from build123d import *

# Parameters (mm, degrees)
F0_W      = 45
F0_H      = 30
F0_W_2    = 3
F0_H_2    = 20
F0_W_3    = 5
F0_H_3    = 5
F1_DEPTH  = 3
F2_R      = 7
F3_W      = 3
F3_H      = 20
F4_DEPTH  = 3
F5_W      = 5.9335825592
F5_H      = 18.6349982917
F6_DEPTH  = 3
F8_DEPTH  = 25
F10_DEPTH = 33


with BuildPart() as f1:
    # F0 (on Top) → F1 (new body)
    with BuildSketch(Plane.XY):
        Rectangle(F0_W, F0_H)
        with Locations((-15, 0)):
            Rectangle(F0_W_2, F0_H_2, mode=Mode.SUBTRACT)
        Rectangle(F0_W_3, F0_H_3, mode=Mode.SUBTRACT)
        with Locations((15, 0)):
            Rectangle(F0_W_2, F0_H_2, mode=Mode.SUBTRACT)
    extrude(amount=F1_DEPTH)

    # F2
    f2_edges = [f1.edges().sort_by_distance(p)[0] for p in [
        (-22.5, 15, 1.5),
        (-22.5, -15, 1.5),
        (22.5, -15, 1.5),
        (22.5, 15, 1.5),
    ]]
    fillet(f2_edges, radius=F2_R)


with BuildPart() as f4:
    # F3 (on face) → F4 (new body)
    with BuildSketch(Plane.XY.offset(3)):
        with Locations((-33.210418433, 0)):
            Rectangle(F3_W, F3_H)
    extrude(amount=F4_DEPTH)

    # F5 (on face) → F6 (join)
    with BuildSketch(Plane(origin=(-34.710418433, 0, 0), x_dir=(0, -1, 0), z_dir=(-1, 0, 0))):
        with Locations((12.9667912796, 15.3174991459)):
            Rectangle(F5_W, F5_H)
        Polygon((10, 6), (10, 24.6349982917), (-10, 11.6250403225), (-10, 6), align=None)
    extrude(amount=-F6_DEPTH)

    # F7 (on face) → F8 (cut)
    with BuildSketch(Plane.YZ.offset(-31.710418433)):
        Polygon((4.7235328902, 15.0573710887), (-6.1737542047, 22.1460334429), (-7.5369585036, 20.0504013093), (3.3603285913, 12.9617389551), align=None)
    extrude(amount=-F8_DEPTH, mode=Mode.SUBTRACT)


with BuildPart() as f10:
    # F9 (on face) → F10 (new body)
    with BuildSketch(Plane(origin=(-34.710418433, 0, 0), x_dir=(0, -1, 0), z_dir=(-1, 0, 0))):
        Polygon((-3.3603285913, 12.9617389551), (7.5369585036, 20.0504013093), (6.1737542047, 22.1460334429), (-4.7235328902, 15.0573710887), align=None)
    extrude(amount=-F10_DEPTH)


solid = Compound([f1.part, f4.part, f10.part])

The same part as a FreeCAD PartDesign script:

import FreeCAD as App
import Part
import Sketcher


def edges_at(feature, points):
    """Names of the edges that pass closest to the given points."""
    edges = feature.Shape.Edges
    near = lambda p: min(range(len(edges)), key=lambda i: edges[i].distToShape(Part.Vertex(*p))[0])
    return sorted({f"Edge{near(p) + 1}" for p in points})


def add_polygon(sketch, points):
    """Adds a closed chain of lines whose ends are joined by coincident constraints."""
    first, n = sketch.GeometryCount, len(points)
    for a, b in zip(points, points[1:] + points[:1]):
        sketch.addGeometry(Part.LineSegment(App.Vector(*a, 0), App.Vector(*b, 0)), False)
    for i in range(n):
        sketch.addConstraint(Sketcher.Constraint("Coincident", first + i, 2, first + (i + 1) % n, 1))

doc = App.newDocument("Part")
params = doc.addObject("Spreadsheet::Sheet", "Params")
for row, (alias, value) in enumerate([
    ("sketch1_width", "45 mm"),
    ("sketch1_width2", "3 mm"),
    ("sketch1_width3", "5 mm"),
    ("sketch1_height", "30 mm"),
    ("sketch1_height2", "20 mm"),
    ("pad1_length", "3 mm"),
    ("fillet_radius", "7 mm"),
    ("sketch2_width", "3 mm"),
    ("sketch2_height", "20 mm"),
    ("pad2_length", "3 mm"),
    ("sketch3_width", "20 mm"),
    ("pad3_length", "3 mm"),
    ("sketch4_length", "13 mm"),
    ("sketch4_length2", "2.5 mm"),
    ("pocket1_length", "25 mm"),
    ("sketch5_length", "13 mm"),
    ("sketch5_length2", "2.5 mm"),
    ("pad4_length", "33 mm"),
], start=1):
    params.set(f"A{row}", alias)
    params.set(f"B{row}", "=" + value)
    params.setAlias(f"B{row}", alias)

body = doc.addObject("PartDesign::Body", "Body")

sketch1 = doc.addObject("Sketcher::SketchObject", "Sketch")
body.addObject(sketch1)
sketch1.AttachmentSupport = (doc.XY_Plane, [""])
sketch1.MapMode = "FlatFace"
add_polygon(sketch1, [(-22.5, 15), (-22.5, -15), (22.5, -15), (22.5, 15)])
add_polygon(sketch1, [(-13.5, -10), (-16.5, -10), (-16.5, 10), (-13.5, 10)])
add_polygon(sketch1, [(2.5, -2.5), (-2.5, -2.5), (-2.5, 2.5), (2.5, 2.5)])
add_polygon(sketch1, [(16.5, -10), (13.5, -10), (13.5, 10), (16.5, 10)])
sketch1.addConstraint([
    Sketcher.Constraint("Vertical", 0),
    Sketcher.Constraint("Horizontal", 1),
    Sketcher.Constraint("Vertical", 2),
    Sketcher.Constraint("Horizontal", 3),
    Sketcher.Constraint("Horizontal", 4),
    Sketcher.Constraint("Vertical", 5),
    Sketcher.Constraint("Horizontal", 6),
    Sketcher.Constraint("Vertical", 7),
    Sketcher.Constraint("Horizontal", 8),
    Sketcher.Constraint("Vertical", 9),
    Sketcher.Constraint("Horizontal", 10),
    Sketcher.Constraint("Vertical", 11),
    Sketcher.Constraint("Horizontal", 12),
    Sketcher.Constraint("Vertical", 13),
    Sketcher.Constraint("Horizontal", 14),
    Sketcher.Constraint("Vertical", 15),
    Sketcher.Constraint("Symmetric", 0, 2, 2, 2, -1, 1),
    Sketcher.Constraint("Symmetric", 8, 2, 10, 2, -1, 1),
    Sketcher.Constraint("Symmetric", 6, 2, 12, 2, -1, 1),
    Sketcher.Constraint("Symmetric", 4, 2, 14, 2, -1, 1),
    Sketcher.Constraint("Horizontal", 7, 2, 12, 2),
    Sketcher.Constraint("Equal", 10, 9),
    Sketcher.Constraint("DistanceX", 1, 1, 1, 2, 45.0),
    Sketcher.Constraint("DistanceX", 4, 2, 4, 1, 3.0),
    Sketcher.Constraint("DistanceX", 8, 2, 8, 1, 5.0),
    Sketcher.Constraint("DistanceY", 0, 2, 0, 1, 30.0),
    Sketcher.Constraint("DistanceY", 5, 1, 5, 2, 20.0),
    Sketcher.Constraint("DistanceX", 0, 2, 4, 2, 6.0),
])
sketch1.setExpression("Constraints[38]", "Params.sketch1_width")
sketch1.setExpression("Constraints[39]", "Params.sketch1_width2")
sketch1.setExpression("Constraints[40]", "Params.sketch1_width3")
sketch1.setExpression("Constraints[41]", "Params.sketch1_height")
sketch1.setExpression("Constraints[42]", "Params.sketch1_height2")
pad1 = doc.addObject("PartDesign::Pad", "Pad")
body.addObject(pad1)
pad1.Profile = sketch1
pad1.setExpression("Length", "Params.pad1_length")
doc.recompute()

fillet = doc.addObject("PartDesign::Fillet", "Fillet")
body.addObject(fillet)
fillet.Base = (pad1, edges_at(pad1, [
    (-22.5, 15, 1.5),
    (-22.5, -15, 1.5),
    (22.5, -15, 1.5),
    (22.5, 15, 1.5),
]))
fillet.setExpression("Radius", "Params.fillet_radius")
body2 = doc.addObject("PartDesign::Body", "Body001")

sketch2 = doc.addObject("Sketcher::SketchObject", "Sketch001")
body2.addObject(sketch2)
sketch2.AttachmentSupport = (doc.getObject("XY_Plane001"), [""])
sketch2.MapMode = "FlatFace"
sketch2.AttachmentOffset = App.Placement(App.Vector(0, 0, 3), App.Rotation())
add_polygon(sketch2, [(-34.7, 10), (-34.7, -10), (-31.7, -10), (-31.7, 10)])
sketch2.addConstraint([
    Sketcher.Constraint("Vertical", 0),
    Sketcher.Constraint("Horizontal", 1),
    Sketcher.Constraint("Vertical", 2),
    Sketcher.Constraint("Horizontal", 3),
    Sketcher.Constraint("DistanceX", 1, 1, 1, 2, 3.0),
    Sketcher.Constraint("DistanceY", 0, 2, 0, 1, 20.0),
    Sketcher.Constraint("DistanceY", 0, 2, -1, 1, 10.0),
    Sketcher.Constraint("DistanceX", 0, 2, -1, 1, 34.710418),
])
sketch2.setExpression("Constraints[8]", "Params.sketch2_width")
sketch2.setExpression("Constraints[9]", "Params.sketch2_height")
pad2 = doc.addObject("PartDesign::Pad", "Pad001")
body2.addObject(pad2)
pad2.Profile = sketch2
pad2.setExpression("Length", "Params.pad2_length")

sketch3 = doc.addObject("Sketcher::SketchObject", "Sketch002")
body2.addObject(sketch3)
sketch3.AttachmentSupport = (doc.getObject("YZ_Plane001"), [""])
sketch3.MapMode = "FlatFace"
sketch3.AttachmentOffset = App.Placement(App.Vector(0, 0, -34.710418), App.Rotation())
add_polygon(sketch3, [(-10, 6), (-16, 6), (-16, 25), (-10, 25), (10, 12), (10, 6)])
sketch3.addConstraint([
    Sketcher.Constraint("Horizontal", 0),
    Sketcher.Constraint("Vertical", 1),
    Sketcher.Constraint("Horizontal", 2),
    Sketcher.Constraint("Vertical", 4),
    Sketcher.Constraint("Horizontal", 5),
    Sketcher.Constraint("Vertical", 2, 2, 5, 2),
    Sketcher.Constraint("DistanceX", 5, 2, 5, 1, 20.0),
    Sketcher.Constraint("DistanceY", -1, 1, 0, 2, 6.0),
    Sketcher.Constraint("DistanceX", 2, 2, -1, 1, 10.0),
    Sketcher.Constraint("DistanceY", 1, 1, 1, 2, 18.634998),
    Sketcher.Constraint("DistanceY", 4, 2, 4, 1, 5.62504),
    Sketcher.Constraint("DistanceX", 0, 2, 0, 1, 5.933583),
])
sketch3.setExpression("Constraints[12]", "Params.sketch3_width")
pad3 = doc.addObject("PartDesign::Pad", "Pad002")
body2.addObject(pad3)
pad3.Profile = sketch3
pad3.setExpression("Length", "Params.pad3_length")

sketch4 = doc.addObject("Sketcher::SketchObject", "Sketch003")
body2.addObject(sketch4)
sketch4.AttachmentSupport = (doc.getObject("YZ_Plane001"), [""])
sketch4.MapMode = "FlatFace"
sketch4.AttachmentOffset = App.Placement(App.Vector(0, 0, -31.710418), App.Rotation())
add_polygon(sketch4, [(4.7, 15.1), (-6.2, 22.1), (-7.5, 20.1), (3.4, 13)])
sketch4.addConstraint([
    Sketcher.Constraint("Perpendicular", 0, 1),
    Sketcher.Constraint("Perpendicular", 1, 2),
    Sketcher.Constraint("Perpendicular", 2, 3),
    Sketcher.Constraint("Distance", 0, 13.0),
    Sketcher.Constraint("Distance", 1, 2.5),
    Sketcher.Constraint("DistanceY", -1, 1, 1, 2, 20.050401),
    Sketcher.Constraint("DistanceX", 1, 2, -1, 1, 7.536959),
    Sketcher.Constraint("DistanceX", -1, 1, 2, 2, 3.360329),
])
sketch4.setExpression("Constraints[7]", "Params.sketch4_length")
sketch4.setExpression("Constraints[8]", "Params.sketch4_length2")
pocket1 = doc.addObject("PartDesign::Pocket", "Pocket")
body2.addObject(pocket1)
pocket1.Profile = sketch4
pocket1.setExpression("Length", "Params.pocket1_length")
body3 = doc.addObject("PartDesign::Body", "Body002")

sketch5 = doc.addObject("Sketcher::SketchObject", "Sketch004")
body3.addObject(sketch5)
sketch5.AttachmentSupport = (doc.getObject("YZ_Plane002"), [""])
sketch5.MapMode = "FlatFace"
sketch5.AttachmentOffset = App.Placement(App.Vector(0, 0, -34.710418), App.Rotation())
add_polygon(sketch5, [(3.4, 13), (-7.5, 20.1), (-6.2, 22.1), (4.7, 15.1)])
sketch5.addConstraint([
    Sketcher.Constraint("Perpendicular", 0, 1),
    Sketcher.Constraint("Perpendicular", 1, 2),
    Sketcher.Constraint("Perpendicular", 2, 3),
    Sketcher.Constraint("Distance", 0, 13.0),
    Sketcher.Constraint("Distance", 1, 2.5),
    Sketcher.Constraint("DistanceY", -1, 1, 0, 2, 20.050401),
    Sketcher.Constraint("DistanceX", 0, 2, -1, 1, 7.536959),
    Sketcher.Constraint("DistanceY", -1, 1, 2, 2, 15.057371),
])
sketch5.setExpression("Constraints[7]", "Params.sketch5_length")
sketch5.setExpression("Constraints[8]", "Params.sketch5_length2")
pad4 = doc.addObject("PartDesign::Pad", "Pad003")
body3.addObject(pad4)
pad4.Profile = sketch5
pad4.setExpression("Length", "Params.pad4_length")

doc.recompute()
